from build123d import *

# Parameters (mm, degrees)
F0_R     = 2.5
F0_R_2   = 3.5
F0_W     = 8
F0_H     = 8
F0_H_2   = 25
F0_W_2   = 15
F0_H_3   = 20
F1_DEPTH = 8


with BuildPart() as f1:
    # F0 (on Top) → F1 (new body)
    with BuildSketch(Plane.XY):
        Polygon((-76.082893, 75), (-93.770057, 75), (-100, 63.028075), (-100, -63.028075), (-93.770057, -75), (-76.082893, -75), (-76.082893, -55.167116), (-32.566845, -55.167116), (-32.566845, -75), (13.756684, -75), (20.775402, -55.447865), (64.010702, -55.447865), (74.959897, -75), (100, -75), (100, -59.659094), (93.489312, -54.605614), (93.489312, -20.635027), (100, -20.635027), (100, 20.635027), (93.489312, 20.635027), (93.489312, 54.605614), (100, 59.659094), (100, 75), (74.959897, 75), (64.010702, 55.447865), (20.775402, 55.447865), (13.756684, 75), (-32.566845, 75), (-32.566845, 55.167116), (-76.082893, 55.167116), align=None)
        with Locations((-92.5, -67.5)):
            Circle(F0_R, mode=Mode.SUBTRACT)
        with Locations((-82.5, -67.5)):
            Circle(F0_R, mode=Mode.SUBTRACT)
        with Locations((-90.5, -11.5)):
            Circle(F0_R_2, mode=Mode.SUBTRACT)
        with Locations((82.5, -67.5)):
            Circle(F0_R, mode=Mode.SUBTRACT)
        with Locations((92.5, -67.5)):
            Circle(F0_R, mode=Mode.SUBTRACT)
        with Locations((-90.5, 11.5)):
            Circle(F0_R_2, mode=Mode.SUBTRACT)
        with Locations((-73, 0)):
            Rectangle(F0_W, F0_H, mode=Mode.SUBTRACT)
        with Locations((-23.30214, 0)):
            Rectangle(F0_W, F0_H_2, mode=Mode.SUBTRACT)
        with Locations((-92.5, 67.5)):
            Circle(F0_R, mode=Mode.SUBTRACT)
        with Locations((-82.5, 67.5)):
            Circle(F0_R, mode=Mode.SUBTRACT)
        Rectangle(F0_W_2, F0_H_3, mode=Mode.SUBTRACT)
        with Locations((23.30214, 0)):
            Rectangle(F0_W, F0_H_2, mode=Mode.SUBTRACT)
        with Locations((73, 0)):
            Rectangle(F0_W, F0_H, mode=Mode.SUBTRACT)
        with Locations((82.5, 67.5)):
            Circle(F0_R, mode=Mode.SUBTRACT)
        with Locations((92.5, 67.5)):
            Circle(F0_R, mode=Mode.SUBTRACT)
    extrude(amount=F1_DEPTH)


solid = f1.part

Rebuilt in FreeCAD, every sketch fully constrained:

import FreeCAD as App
import Part
import Sketcher

V = App.Vector
Q = App.Units.Quantity

doc = App.newDocument("Part")
body = doc.addObject("PartDesign::Body", "Body")

sketch1 = body.newObject("Sketcher::SketchObject", "Sketch")
sketch1.AttachmentSupport = (doc.getObject("XY_Plane"), [""])
sketch1.MapMode = "FlatFace"
sketch1.addGeometry([
    Part.LineSegment(V(-76.1, 75, 0), V(-93.8, 75, 0)),
    Part.LineSegment(V(-93.8, 75, 0), V(-100, 63, 0)),
    Part.LineSegment(V(-100, 63, 0), V(-100, -63, 0)),
    Part.LineSegment(V(-100, -63, 0), V(-93.8, -75, 0)),
    Part.LineSegment(V(-93.8, -75, 0), V(-76.1, -75, 0)),
    Part.LineSegment(V(-76.1, -75, 0), V(-76.1, -55.2, 0)),
    Part.LineSegment(V(-76.1, -55.2, 0), V(-32.6, -55.2, 0)),
    Part.LineSegment(V(-32.6, -55.2, 0), V(-32.6, -75, 0)),
    Part.LineSegment(V(-32.6, -75, 0), V(13.8, -75, 0)),
    Part.LineSegment(V(13.8, -75, 0), V(20.8, -55.4, 0)),
    Part.LineSegment(V(20.8, -55.4, 0), V(64, -55.4, 0)),
    Part.LineSegment(V(64, -55.4, 0), V(75, -75, 0)),
    Part.LineSegment(V(75, -75, 0), V(100, -75, 0)),
    Part.LineSegment(V(100, -75, 0), V(100, -59.7, 0)),
    Part.LineSegment(V(100, -59.7, 0), V(93.5, -54.6, 0)),
    Part.LineSegment(V(93.5, -54.6, 0), V(93.5, -20.6, 0)),
    Part.LineSegment(V(93.5, -20.6, 0), V(100, -20.6, 0)),
    Part.LineSegment(V(100, -20.6, 0), V(100, 20.6, 0)),
    Part.LineSegment(V(100, 20.6, 0), V(93.5, 20.6, 0)),
    Part.LineSegment(V(93.5, 20.6, 0), V(93.5, 54.6, 0)),
    Part.LineSegment(V(93.5, 54.6, 0), V(100, 59.7, 0)),
    Part.LineSegment(V(100, 59.7, 0), V(100, 75, 0)),
    Part.LineSegment(V(100, 75, 0), V(75, 75, 0)),
    Part.LineSegment(V(75, 75, 0), V(64, 55.4, 0)),
    Part.LineSegment(V(64, 55.4, 0), V(20.8, 55.4, 0)),
    Part.LineSegment(V(20.8, 55.4, 0), V(13.8, 75, 0)),
    Part.LineSegment(V(13.8, 75, 0), V(-32.6, 75, 0)),
    Part.LineSegment(V(-32.6, 75, 0), V(-32.6, 55.2, 0)),
    Part.LineSegment(V(-32.6, 55.2, 0), V(-76.1, 55.2, 0)),
    Part.LineSegment(V(-76.1, 55.2, 0), V(-76.1, 75, 0)),
    Part.Circle(V(-92.5, -67.5, 0), V(0, 0, 1), 2.5),
    Part.Circle(V(-82.5, -67.5, 0), V(0, 0, 1), 2.5),
    Part.Circle(V(-90.5, -11.5, 0), V(0, 0, 1), 3.5),
    Part.Circle(V(82.5, -67.5, 0), V(0, 0, 1), 2.5),
    Part.Circle(V(92.5, -67.5, 0), V(0, 0, 1), 2.5),
    Part.LineSegment(V(-69, -4, 0), V(-77, -4, 0)),
    Part.LineSegment(V(-77, -4, 0), V(-77, 4, 0)),
    Part.LineSegment(V(-77, 4, 0), V(-69, 4, 0)),
    Part.LineSegment(V(-69, 4, 0), V(-69, -4, 0)),
    Part.Circle(V(-90.5, 11.5, 0), V(0, 0, 1), 3.5),
    Part.LineSegment(V(-19.3, -12.5, 0), V(-27.3, -12.5, 0)),
    Part.LineSegment(V(-27.3, -12.5, 0), V(-27.3, 12.5, 0)),
    Part.LineSegment(V(-27.3, 12.5, 0), V(-19.3, 12.5, 0)),
    Part.LineSegment(V(-19.3, 12.5, 0), V(-19.3, -12.5, 0)),
    Part.Circle(V(-92.5, 67.5, 0), V(0, 0, 1), 2.5),
    Part.Circle(V(-82.5, 67.5, 0), V(0, 0, 1), 2.5),
    Part.LineSegment(V(7.5, -10, 0), V(-7.5, -10, 0)),
    Part.LineSegment(V(-7.5, -10, 0), V(-7.5, 10, 0)),
    Part.LineSegment(V(-7.5, 10, 0), V(7.5, 10, 0)),
    Part.LineSegment(V(7.5, 10, 0), V(7.5, -10, 0)),
    Part.LineSegment(V(27.3, -12.5, 0), V(19.3, -12.5, 0)),
    Part.LineSegment(V(19.3, -12.5, 0), V(19.3, 12.5, 0)),
    Part.LineSegment(V(19.3, 12.5, 0), V(27.3, 12.5, 0)),
    Part.LineSegment(V(27.3, 12.5, 0), V(27.3, -12.5, 0)),
    Part.LineSegment(V(77, -4, 0), V(69, -4, 0)),
    Part.LineSegment(V(69, -4, 0), V(69, 4, 0)),
    Part.LineSegment(V(69, 4, 0), V(77, 4, 0)),
    Part.LineSegment(V(77, 4, 0), V(77, -4, 0)),
    Part.Circle(V(82.5, 67.5, 0), V(0, 0, 1), 2.5),
    Part.Circle(V(92.5, 67.5, 0), V(0, 0, 1), 2.5),
], False)
sketch1.addConstraint([
    Sketcher.Constraint("Coincident", 0, 2, 1, 1),
    Sketcher.Constraint("Coincident", 1, 2, 2, 1),
    Sketcher.Constraint("Coincident", 2, 2, 3, 1),
    Sketcher.Constraint("Coincident", 3, 2, 4, 1),
    Sketcher.Constraint("Coincident", 4, 2, 5, 1),
    Sketcher.Constraint("Coincident", 5, 2, 6, 1),
    Sketcher.Constraint("Coincident", 6, 2, 7, 1),
    Sketcher.Constraint("Coincident", 7, 2, 8, 1),
    Sketcher.Constraint("Coincident", 8, 2, 9, 1),
    Sketcher.Constraint("Coincident", 9, 2, 10, 1),
    Sketcher.Constraint("Coincident", 10, 2, 11, 1),
    Sketcher.Constraint("Coincident", 11, 2, 12, 1),
    Sketcher.Constraint("Coincident", 12, 2, 13, 1),
    Sketcher.Constraint("Coincident", 13, 2, 14, 1),
    Sketcher.Constraint("Coincident", 14, 2, 15, 1),
    Sketcher.Constraint("Coincident", 15, 2, 16, 1),
    Sketcher.Constraint("Coincident", 16, 2, 17, 1),
    Sketcher.Constraint("Coincident", 17, 2, 18, 1),
    Sketcher.Constraint("Coincident", 18, 2, 19, 1),
    Sketcher.Constraint("Coincident", 19, 2, 20, 1),
    Sketcher.Constraint("Coincident", 20, 2, 21, 1),
    Sketcher.Constraint("Coincident", 21, 2, 22, 1),
    Sketcher.Constraint("Coincident", 22, 2, 23, 1),
    Sketcher.Constraint("Coincident", 23, 2, 24, 1),
    Sketcher.Constraint("Coincident", 24, 2, 25, 1),
    Sketcher.Constraint("Coincident", 25, 2, 26, 1),
    Sketcher.Constraint("Coincident", 26, 2, 27, 1),
    Sketcher.Constraint("Coincident", 27, 2, 28, 1),
    Sketcher.Constraint("Coincident", 28, 2, 29, 1),
    Sketcher.Constraint("Coincident", 29, 2, 0, 1),
    Sketcher.Constraint("Coincident", 35, 2, 36, 1),
    Sketcher.Constraint("Coincident", 36, 2, 37, 1),
    Sketcher.Constraint("Coincident", 37, 2, 38, 1),
    Sketcher.Constraint("Coincident", 38, 2, 35, 1),
    Sketcher.Constraint("Coincident", 40, 2, 41, 1),
    Sketcher.Constraint("Coincident", 41, 2, 42, 1),
    Sketcher.Constraint("Coincident", 42, 2, 43, 1),
    Sketcher.Constraint("Coincident", 43, 2, 40, 1),
    Sketcher.Constraint("Coincident", 46, 2, 47, 1),
    Sketcher.Constraint("Coincident", 47, 2, 48, 1),
    Sketcher.Constraint("Coincident", 48, 2, 49, 1),
    Sketcher.Constraint("Coincident", 49, 2, 46, 1),
    Sketcher.Constraint("Coincident", 50, 2, 51, 1),
    Sketcher.Constraint("Coincident", 51, 2, 52, 1),
    Sketcher.Constraint("Coincident", 52, 2, 53, 1),
    Sketcher.Constraint("Coincident", 53, 2, 50, 1),
    Sketcher.Constraint("Coincident", 54, 2, 55, 1),
    Sketcher.Constraint("Coincident", 55, 2, 56, 1),
    Sketcher.Constraint("Coincident", 56, 2, 57, 1),
    Sketcher.Constraint("Coincident", 57, 2, 54, 1),
    Sketcher.Constraint("Horizontal", 0),
    Sketcher.Constraint("Vertical", 2),
    Sketcher.Constraint("Horizontal", 4),
    Sketcher.Constraint("Vertical", 5),
    Sketcher.Constraint("Horizontal", 6),
    Sketcher.Constraint("Vertical", 7),
    Sketcher.Constraint("Horizontal", 8),
    Sketcher.Constraint("Horizontal", 10),
    Sketcher.Constraint("Horizontal", 12),
    Sketcher.Constraint("Vertical", 13),
    Sketcher.Constraint("Vertical", 15),
    Sketcher.Constraint("Horizontal", 16),
    Sketcher.Constraint("Vertical", 17),
    Sketcher.Constraint("Horizontal", 18),
    Sketcher.Constraint("Vertical", 19),
    Sketcher.Constraint("Vertical", 21),
    Sketcher.Constraint("Horizontal", 22),
    Sketcher.Constraint("Horizontal", 24),
    Sketcher.Constraint("Horizontal", 26),
    Sketcher.Constraint("Vertical", 27),
    Sketcher.Constraint("Horizontal", 28),
    Sketcher.Constraint("Vertical", 29),
    Sketcher.Constraint("Horizontal", 35),
    Sketcher.Constraint("Vertical", 36),
    Sketcher.Constraint("Horizontal", 37),
    Sketcher.Constraint("Vertical", 38),
    Sketcher.Constraint("Horizontal", 40),
    Sketcher.Constraint("Vertical", 41),
    Sketcher.Constraint("Horizontal", 42),
    Sketcher.Constraint("Vertical", 43),
    Sketcher.Constraint("Horizontal", 46),
    Sketcher.Constraint("Vertical", 47),
    Sketcher.Constraint("Horizontal", 48),
    Sketcher.Constraint("Vertical", 49),
    Sketcher.Constraint("Horizontal", 50),
    Sketcher.Constraint("Vertical", 51),
    Sketcher.Constraint("Horizontal", 52),
    Sketcher.Constraint("Vertical", 53),
    Sketcher.Constraint("Horizontal", 54),
    Sketcher.Constraint("Vertical", 55),
    Sketcher.Constraint("Horizontal", 56),
    Sketcher.Constraint("Vertical", 57),
    Sketcher.Constraint("Equal", 30, 31),
    Sketcher.Constraint("Equal", 31, 33),
    Sketcher.Constraint("Equal", 33, 34),
    Sketcher.Constraint("Equal", 32, 39),
    Sketcher.Constraint("Equal", 34, 44),
    Sketcher.Constraint("Equal", 44, 45),
    Sketcher.Constraint("Equal", 45, 58),
    Sketcher.Constraint("Equal", 58, 59),
    Sketcher.Constraint("Symmetric", 34, 3, 44, 3, -1, 1),
    Sketcher.Constraint("Symmetric", 33, 3, 45, 3, -1, 1),
    Sketcher.Constraint("Symmetric", 31, 3, 58, 3, -1, 1),
    Sketcher.Constraint("Symmetric", 30, 3, 59, 3, -1, 1),
    Sketcher.Constraint("Symmetric", 46, 2, 48, 2, -1, 1),
    Sketcher.Constraint("Symmetric", 42, 2, 50, 2, -1, 1),
    Sketcher.Constraint("Symmetric", 40, 2, 52, 2, -1, 1),
    Sketcher.Constraint("Symmetric", 37, 2, 54, 2, -1, 1),
    Sketcher.Constraint("Symmetric", 35, 2, 56, 2, -1, 1),
    Sketcher.Constraint("Symmetric", 31, 3, 33, 3, -2),
    Sketcher.Constraint("Symmetric", 30, 3, 34, 3, -2),
    Sketcher.Constraint("Symmetric", 32, 3, 39, 3, -1),
    Sketcher.Constraint("Symmetric", 0, 2, 3, 2, -1),
    Sketcher.Constraint("Symmetric", 15, 2, 18, 2, -1),
    Sketcher.Constraint("Symmetric", 13, 2, 20, 2, -1),
    Sketcher.Constraint("Symmetric", 11, 2, 22, 2, -1),
    Sketcher.Constraint("Symmetric", 10, 2, 23, 2, -1),
    Sketcher.Constraint("Symmetric", 8, 2, 25, 2, -1),
    Sketcher.Constraint("Symmetric", 6, 2, 27, 2, -1),
    Sketcher.Constraint("Horizontal", 30, 3, 31, 3),
    Sketcher.Constraint("Horizontal", 4, 2, 7, 2),
    Sketcher.Constraint("Horizontal", 8, 2, 11, 2),
    Sketcher.Constraint("Horizontal", 43, 2, 50, 2),
    Sketcher.Constraint("Horizontal", 38, 2, 54, 2),
    Sketcher.Constraint("Vertical", 13, 2, 16, 2),
    Sketcher.Constraint("Vertical", 9, 2, 24, 2),
    Sketcher.Constraint("Vertical", 5, 2, 28, 2),
    Sketcher.Constraint("Equal", 37, 40),
    Sketcher.Constraint("Equal", 15, 19),
    Sketcher.Constraint("Equal", 56, 36),
    Sketcher.Constraint("Equal", 1, 3),
    Sketcher.Constraint("Diameter", 30, Q("5 mm")),
    Sketcher.Constraint("Diameter", 32, Q("7 mm")),
    Sketcher.Constraint("DistanceX", 35, 2, 35, 1, Q("8 mm")),
    Sketcher.Constraint("DistanceX", 46, 2, 46, 1, Q("15 mm")),
    Sketcher.Constraint("DistanceY", 41, 1, 41, 2, Q("25 mm")),
    Sketcher.Constraint("DistanceY", 47, 1, 47, 2, Q("20 mm")),
    Sketcher.Constraint("DistanceY", -1, 1, 0, 2, Q("75 mm")),
    Sketcher.Constraint("DistanceX", 1, 2, -1, 1, Q("100 mm")),
    Sketcher.Constraint("DistanceX", -1, 1, 12, 2, Q("100 mm")),
    Sketcher.Constraint("DistanceX", 35, 2, -1, 1, Q("77 mm")),
    Sketcher.Constraint("DistanceX", 30, 3, 31, 3, Q("10 mm")),
    Sketcher.Constraint("DistanceX", 30, 3, 32, 3, Q("2 mm")),
    Sketcher.Constraint("DistanceY", 30, 3, 32, 3, Q("56 mm")),
    Sketcher.Constraint("DistanceX", 31, 3, 33, 3, Q("165 mm")),
    Sketcher.Constraint("DistanceY", 32, 3, 39, 3, Q("23 mm")),
    Sketcher.Constraint("DistanceX", 10, 1, 10, 2, Q("43.2353 mm")),
    Sketcher.Constraint("DistanceX", 8, 1, 8, 2, Q("46.323529 mm")),
    Sketcher.Constraint("DistanceX", 16, 1, 16, 2, Q("6.510688 mm")),
    Sketcher.Constraint("DistanceY", 2, 2, 2, 1, Q("126.05615 mm")),
    Sketcher.Constraint("DistanceX", -1, 1, 9, 2, Q("20.775402 mm")),
    Sketcher.Constraint("Distance", 11, Q("22.409169 mm")),
    Sketcher.Constraint("DistanceX", 0, 2, 0, 1, Q("17.687164 mm")),
    Sketcher.Constraint("DistanceX", 6, 1, 6, 2, Q("43.516048 mm")),
    Sketcher.Constraint("DistanceX", 12, 1, 12, 2, Q("25.040103 mm")),
    Sketcher.Constraint("DistanceY", 5, 1, 5, 2, Q("19.832884 mm")),
    Sketcher.Constraint("DistanceY", 13, 1, 13, 2, Q("15.340906 mm")),
    Sketcher.Constraint("DistanceY", 15, 1, 15, 2, Q("33.970587 mm")),
    Sketcher.Constraint("DistanceY", 17, 1, 17, 2, Q("41.270054 mm")),
    Sketcher.Constraint("DistanceX", 40, 2, -1, 1, Q("27.30214 mm")),
    Sketcher.Constraint("Distance", 1, Q("13.495895 mm")),
])
pad1 = body.newObject("PartDesign::Pad", "Pad")
pad1.Profile = sketch1
pad1.Length = 8

doc.recompute()
